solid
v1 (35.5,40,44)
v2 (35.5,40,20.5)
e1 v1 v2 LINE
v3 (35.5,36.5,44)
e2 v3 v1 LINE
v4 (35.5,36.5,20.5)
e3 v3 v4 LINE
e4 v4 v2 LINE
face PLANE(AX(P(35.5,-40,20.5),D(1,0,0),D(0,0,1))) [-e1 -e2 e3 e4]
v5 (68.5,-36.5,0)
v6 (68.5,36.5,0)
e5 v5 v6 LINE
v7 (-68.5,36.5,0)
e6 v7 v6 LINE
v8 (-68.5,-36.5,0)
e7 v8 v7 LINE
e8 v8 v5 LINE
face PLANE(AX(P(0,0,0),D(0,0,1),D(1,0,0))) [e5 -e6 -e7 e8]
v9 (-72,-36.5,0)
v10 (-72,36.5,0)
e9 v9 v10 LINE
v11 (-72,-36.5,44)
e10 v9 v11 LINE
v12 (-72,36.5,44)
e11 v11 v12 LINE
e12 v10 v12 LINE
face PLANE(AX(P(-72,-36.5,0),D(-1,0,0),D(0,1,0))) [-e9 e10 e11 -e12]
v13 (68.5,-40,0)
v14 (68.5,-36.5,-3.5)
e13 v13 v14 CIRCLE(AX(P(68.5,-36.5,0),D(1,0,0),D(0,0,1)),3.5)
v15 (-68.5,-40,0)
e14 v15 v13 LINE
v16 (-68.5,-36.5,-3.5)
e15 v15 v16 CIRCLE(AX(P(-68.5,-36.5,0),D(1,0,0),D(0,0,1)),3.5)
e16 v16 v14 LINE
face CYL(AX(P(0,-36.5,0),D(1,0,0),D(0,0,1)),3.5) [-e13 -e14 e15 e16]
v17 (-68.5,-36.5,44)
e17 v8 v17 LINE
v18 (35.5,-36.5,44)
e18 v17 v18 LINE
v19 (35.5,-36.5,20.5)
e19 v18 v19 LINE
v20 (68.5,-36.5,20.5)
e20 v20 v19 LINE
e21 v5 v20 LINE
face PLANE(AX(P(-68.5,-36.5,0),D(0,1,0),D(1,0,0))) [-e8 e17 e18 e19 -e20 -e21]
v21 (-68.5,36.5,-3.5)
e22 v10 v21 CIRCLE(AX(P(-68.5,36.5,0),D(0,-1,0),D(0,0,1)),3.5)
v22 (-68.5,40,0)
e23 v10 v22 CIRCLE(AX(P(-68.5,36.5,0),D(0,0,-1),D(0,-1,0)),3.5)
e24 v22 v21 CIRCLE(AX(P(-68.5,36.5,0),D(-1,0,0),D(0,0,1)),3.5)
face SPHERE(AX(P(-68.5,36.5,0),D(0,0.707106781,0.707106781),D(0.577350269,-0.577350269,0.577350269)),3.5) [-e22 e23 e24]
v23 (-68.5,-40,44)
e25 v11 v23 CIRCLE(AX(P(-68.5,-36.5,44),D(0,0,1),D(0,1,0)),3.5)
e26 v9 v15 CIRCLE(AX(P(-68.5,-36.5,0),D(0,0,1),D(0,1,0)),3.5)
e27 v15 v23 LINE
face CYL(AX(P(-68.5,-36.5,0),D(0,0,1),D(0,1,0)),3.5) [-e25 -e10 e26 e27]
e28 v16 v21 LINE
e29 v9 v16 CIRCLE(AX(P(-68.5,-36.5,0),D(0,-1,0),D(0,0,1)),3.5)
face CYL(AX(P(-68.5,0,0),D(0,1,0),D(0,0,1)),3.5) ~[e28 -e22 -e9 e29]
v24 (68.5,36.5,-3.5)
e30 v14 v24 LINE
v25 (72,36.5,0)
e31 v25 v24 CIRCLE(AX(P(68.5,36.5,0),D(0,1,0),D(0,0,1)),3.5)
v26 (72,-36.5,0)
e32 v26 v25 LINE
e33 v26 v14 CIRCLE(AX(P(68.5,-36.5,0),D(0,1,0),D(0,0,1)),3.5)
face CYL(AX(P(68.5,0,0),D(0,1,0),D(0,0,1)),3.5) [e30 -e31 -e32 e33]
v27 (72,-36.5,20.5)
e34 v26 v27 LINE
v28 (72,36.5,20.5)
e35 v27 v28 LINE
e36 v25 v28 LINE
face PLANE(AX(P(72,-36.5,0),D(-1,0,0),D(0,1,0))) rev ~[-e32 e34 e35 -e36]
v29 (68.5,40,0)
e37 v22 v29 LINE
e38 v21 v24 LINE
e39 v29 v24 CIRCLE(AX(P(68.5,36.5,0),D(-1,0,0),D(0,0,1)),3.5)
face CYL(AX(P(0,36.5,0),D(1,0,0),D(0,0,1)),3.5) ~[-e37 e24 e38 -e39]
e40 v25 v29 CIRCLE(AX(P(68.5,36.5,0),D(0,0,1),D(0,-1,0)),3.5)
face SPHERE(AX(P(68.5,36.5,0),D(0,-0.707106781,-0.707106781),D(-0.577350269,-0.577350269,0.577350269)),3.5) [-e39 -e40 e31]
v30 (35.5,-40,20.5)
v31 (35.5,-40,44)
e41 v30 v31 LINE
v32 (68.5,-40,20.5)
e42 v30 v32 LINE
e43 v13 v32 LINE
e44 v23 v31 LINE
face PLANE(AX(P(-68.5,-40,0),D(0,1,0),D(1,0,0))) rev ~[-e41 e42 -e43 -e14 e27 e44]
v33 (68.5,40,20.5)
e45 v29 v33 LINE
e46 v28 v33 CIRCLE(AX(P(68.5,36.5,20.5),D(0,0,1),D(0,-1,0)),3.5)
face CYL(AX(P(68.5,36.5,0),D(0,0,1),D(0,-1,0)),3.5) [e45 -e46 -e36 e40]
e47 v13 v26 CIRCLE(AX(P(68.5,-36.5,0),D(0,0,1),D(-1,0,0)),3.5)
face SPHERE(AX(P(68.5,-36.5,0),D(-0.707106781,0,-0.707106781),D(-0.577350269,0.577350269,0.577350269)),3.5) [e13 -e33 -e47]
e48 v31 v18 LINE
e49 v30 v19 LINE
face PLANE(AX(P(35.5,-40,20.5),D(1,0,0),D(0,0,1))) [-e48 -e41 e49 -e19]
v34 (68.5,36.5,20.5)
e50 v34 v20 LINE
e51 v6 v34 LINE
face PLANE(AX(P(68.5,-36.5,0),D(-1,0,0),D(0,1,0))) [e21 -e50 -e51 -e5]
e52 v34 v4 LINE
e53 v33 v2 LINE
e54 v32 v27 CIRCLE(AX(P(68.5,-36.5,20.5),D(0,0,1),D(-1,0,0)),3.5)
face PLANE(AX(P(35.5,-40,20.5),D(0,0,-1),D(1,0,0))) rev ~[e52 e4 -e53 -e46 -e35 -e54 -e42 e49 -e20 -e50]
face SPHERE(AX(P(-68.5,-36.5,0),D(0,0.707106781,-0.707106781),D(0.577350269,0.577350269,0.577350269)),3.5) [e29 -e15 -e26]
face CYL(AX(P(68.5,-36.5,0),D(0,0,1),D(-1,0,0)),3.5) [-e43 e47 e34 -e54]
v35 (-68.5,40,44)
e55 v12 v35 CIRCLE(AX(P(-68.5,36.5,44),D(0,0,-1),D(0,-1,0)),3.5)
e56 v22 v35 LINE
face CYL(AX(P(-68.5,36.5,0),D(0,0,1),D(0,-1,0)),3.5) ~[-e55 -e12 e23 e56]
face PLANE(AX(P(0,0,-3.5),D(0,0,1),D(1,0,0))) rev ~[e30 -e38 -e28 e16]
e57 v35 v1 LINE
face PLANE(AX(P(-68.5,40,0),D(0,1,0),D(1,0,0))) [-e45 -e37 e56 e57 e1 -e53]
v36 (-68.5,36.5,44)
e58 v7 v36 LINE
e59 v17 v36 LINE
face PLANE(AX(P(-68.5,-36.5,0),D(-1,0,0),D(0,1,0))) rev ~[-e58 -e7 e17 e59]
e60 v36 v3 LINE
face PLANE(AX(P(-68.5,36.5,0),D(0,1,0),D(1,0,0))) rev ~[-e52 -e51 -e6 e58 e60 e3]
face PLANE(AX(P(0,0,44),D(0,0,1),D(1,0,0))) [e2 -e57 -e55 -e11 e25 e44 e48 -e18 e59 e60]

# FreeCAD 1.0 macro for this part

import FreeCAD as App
import Part
import Sketcher


def faces_at(feature, points):
    """Names of the faces that lie closest to the given points."""
    faces = feature.Shape.Faces
    near = lambda p: min(range(len(faces)), key=lambda i: faces[i].distToShape(Part.Vertex(*p))[0])
    return sorted({f"Face{near(p) + 1}" for p in points})

doc = App.newDocument("Part")
body = doc.addObject("PartDesign::Body", "Body")

# Sketch on XY plane
sketch1 = body.newObject("Sketcher::SketchObject", "Sketch")
sketch1.AttachmentSupport = (doc.getObject("XY_Plane"), [""])
sketch1.MapMode = "FlatFace"
sketch1.addGeometry(Part.LineSegment(App.Vector(-68, 36, 0), App.Vector(-68, -36, 0)), False)
sketch1.addGeometry(Part.LineSegment(App.Vector(-68, -36, 0), App.Vector(68, -36, 0)), False)
sketch1.addGeometry(Part.LineSegment(App.Vector(68, -36, 0), App.Vector(68, 36, 0)), False)
sketch1.addGeometry(Part.LineSegment(App.Vector(68, 36, 0), App.Vector(-68, 36, 0)), False)
sketch1.addConstraint(Sketcher.Constraint("Coincident", 0, 2, 1, 1))
sketch1.addConstraint(Sketcher.Constraint("Coincident", 1, 2, 2, 1))
sketch1.addConstraint(Sketcher.Constraint("Coincident", 2, 2, 3, 1))
sketch1.addConstraint(Sketcher.Constraint("Coincident", 3, 2, 0, 1))
sketch1.addConstraint(Sketcher.Constraint("Vertical", 0))
sketch1.addConstraint(Sketcher.Constraint("Horizontal", 1))
sketch1.addConstraint(Sketcher.Constraint("Vertical", 2))
sketch1.addConstraint(Sketcher.Constraint("Horizontal", 3))
sketch1.addConstraint(Sketcher.Constraint("Symmetric", 0, 2, 2, 2, -1, 1))
sketch1.addConstraint(Sketcher.Constraint("DistanceX", 1, 1, 1, 2, 137.0))
sketch1.addConstraint(Sketcher.Constraint("DistanceY", 0, 2, 0, 1, 73.0))
pad1 = body.newObject("PartDesign::Pad", "Pad")
pad1.Profile = sketch1
pad1.Length = 44
doc.recompute()

thickness = body.newObject("PartDesign::Thickness", "Thickness")
thickness.Base = (pad1, faces_at(pad1, [(0, 0, 44)]))
thickness.Value = 3.5
thickness.Reversed = False
thickness.Join = "Arc"

# Sketch on XZ plane
sketch2 = body.newObject("Sketcher::SketchObject", "Sketch001")
sketch2.AttachmentSupport = (doc.getObject("XZ_Plane"), [""])
sketch2.MapMode = "FlatFace"
sketch2.AttachmentOffset = App.Placement(App.Vector(0, 0, 40), App.Rotation())
sketch2.addGeometry(Part.LineSegment(App.Vector(36, 44, 0), App.Vector(36, 20, 0)), False)
sketch2.addGeometry(Part.LineSegment(App.Vector(36, 20, 0), App.Vector(72, 20, 0)), False)
sketch2.addGeometry(Part.LineSegment(App.Vector(72, 20, 0), App.Vector(72, 44, 0)), False)
sketch2.addGeometry(Part.LineSegment(App.Vector(72, 44, 0), App.Vector(36, 44, 0)), False)
sketch2.addConstraint(Sketcher.Constraint("Coincident", 0, 2, 1, 1))
sketch2.addConstraint(Sketcher.Constraint("Coincident", 1, 2, 2, 1))
sketch2.addConstraint(Sketcher.Constraint("Coincident", 2, 2, 3, 1))
sketch2.addConstraint(Sketcher.Constraint("Coincident", 3, 2, 0, 1))
sketch2.addConstraint(Sketcher.Constraint("Vertical", 0))
sketch2.addConstraint(Sketcher.Constraint("Horizontal", 1))
sketch2.addConstraint(Sketcher.Constraint("Vertical", 2))
sketch2.addConstraint(Sketcher.Constraint("Horizontal", 3))
sketch2.addConstraint(Sketcher.Constraint("DistanceX", 1, 1, 1, 2, 36.5))
sketch2.addConstraint(Sketcher.Constraint("DistanceY", 0, 2, 0, 1, 23.5))
sketch2.addConstraint(Sketcher.Constraint("DistanceX", -1, 1, 1, 2, 72.0))
sketch2.addConstraint(Sketcher.Constraint("DistanceY", -1, 1, 2, 2, 44.0))
pocket1 = body.newObject("PartDesign::Pocket", "Pocket")
pocket1.Profile = sketch2
pocket1.Length = 89

doc.recompute()
